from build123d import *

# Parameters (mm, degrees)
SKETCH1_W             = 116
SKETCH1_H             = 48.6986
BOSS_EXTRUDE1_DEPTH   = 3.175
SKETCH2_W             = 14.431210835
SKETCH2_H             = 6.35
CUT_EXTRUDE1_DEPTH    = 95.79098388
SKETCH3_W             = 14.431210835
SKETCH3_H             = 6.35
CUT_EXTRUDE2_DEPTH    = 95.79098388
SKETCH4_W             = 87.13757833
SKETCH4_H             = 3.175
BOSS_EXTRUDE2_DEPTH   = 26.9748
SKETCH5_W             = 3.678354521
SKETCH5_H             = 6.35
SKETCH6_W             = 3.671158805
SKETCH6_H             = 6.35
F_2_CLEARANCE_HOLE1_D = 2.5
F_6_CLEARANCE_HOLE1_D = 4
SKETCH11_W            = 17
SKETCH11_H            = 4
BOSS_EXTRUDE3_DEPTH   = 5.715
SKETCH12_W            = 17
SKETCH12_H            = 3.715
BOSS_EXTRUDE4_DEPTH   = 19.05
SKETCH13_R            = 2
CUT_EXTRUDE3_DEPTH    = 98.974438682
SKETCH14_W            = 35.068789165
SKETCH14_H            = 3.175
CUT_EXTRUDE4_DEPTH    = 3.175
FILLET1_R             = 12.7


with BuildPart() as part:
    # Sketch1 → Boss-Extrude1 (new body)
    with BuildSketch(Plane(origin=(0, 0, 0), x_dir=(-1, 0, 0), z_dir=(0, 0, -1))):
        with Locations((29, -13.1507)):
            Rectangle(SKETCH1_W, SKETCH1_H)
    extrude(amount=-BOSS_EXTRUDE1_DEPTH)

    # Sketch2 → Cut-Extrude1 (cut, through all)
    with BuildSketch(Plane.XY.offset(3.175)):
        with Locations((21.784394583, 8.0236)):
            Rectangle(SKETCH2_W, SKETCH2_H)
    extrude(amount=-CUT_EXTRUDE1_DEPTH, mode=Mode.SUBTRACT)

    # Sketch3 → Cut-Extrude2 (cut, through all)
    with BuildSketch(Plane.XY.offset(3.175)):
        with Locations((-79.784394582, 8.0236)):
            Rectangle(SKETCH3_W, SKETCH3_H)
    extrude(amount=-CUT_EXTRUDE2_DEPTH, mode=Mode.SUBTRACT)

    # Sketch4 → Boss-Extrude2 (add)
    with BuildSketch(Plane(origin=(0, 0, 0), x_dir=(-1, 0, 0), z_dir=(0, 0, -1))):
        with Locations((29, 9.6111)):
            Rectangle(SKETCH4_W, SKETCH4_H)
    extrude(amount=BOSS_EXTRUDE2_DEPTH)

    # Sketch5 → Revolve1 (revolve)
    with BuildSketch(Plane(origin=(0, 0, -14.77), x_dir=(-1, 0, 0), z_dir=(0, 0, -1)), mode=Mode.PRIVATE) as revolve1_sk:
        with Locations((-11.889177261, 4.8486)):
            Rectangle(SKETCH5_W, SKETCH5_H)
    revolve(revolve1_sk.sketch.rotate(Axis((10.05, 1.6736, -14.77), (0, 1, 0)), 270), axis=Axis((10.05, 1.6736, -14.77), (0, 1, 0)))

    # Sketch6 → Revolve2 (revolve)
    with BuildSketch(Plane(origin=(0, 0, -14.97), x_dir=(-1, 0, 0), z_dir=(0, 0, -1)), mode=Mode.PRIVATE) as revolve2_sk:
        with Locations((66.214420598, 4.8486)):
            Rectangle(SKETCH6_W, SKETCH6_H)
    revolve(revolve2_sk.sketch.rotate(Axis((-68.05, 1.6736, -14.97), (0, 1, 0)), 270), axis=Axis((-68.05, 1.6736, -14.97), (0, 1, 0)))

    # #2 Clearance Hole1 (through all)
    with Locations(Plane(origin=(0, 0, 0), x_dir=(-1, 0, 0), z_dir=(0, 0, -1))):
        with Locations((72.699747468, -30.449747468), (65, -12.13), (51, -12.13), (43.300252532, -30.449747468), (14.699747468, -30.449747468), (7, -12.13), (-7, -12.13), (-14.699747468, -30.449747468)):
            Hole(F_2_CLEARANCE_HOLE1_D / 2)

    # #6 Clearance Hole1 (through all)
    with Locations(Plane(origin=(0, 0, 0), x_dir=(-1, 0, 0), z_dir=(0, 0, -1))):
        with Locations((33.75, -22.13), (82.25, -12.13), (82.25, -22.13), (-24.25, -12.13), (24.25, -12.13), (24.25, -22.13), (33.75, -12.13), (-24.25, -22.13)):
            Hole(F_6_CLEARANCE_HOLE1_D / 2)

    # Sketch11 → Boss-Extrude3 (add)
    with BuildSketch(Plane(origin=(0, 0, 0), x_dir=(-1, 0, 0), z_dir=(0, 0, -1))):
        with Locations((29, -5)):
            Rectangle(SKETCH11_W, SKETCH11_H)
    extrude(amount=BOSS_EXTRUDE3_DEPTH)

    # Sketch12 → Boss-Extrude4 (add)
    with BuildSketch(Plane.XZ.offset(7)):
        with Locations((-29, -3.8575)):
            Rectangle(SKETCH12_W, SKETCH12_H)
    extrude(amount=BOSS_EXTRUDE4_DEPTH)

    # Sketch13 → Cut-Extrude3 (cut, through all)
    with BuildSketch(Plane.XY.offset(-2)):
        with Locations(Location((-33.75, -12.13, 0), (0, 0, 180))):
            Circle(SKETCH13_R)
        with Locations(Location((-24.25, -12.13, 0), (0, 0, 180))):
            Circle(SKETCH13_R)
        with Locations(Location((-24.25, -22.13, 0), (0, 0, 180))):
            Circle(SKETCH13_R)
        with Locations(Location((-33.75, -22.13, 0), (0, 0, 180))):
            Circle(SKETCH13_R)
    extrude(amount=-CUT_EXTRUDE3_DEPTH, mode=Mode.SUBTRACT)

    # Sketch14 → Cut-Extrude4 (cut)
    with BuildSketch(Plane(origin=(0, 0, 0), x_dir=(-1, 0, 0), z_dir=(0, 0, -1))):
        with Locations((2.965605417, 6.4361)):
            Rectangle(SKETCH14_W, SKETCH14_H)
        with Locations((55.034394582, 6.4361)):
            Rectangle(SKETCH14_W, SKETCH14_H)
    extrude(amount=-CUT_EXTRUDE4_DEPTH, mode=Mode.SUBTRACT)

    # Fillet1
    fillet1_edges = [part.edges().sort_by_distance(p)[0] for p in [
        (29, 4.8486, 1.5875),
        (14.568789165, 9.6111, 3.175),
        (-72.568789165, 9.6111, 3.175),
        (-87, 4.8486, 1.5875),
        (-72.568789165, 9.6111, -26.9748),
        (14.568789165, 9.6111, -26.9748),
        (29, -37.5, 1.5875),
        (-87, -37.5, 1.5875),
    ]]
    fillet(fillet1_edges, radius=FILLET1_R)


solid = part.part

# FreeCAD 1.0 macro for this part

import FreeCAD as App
import Part
import Sketcher

V = App.Vector
Q = App.Units.Quantity


def edges_at(feature, points):
    """Names of the edges that pass closest to the given points."""
    edges = feature.Shape.Edges
    near = lambda p: min(range(len(edges)), key=lambda i: edges[i].distToShape(Part.Vertex(*p))[0])
    return sorted({f"Edge{near(p) + 1}" for p in points})


def add_polygon(sketch, points):
    """Adds a closed chain of lines whose ends are joined by coincident constraints."""
    first, n = sketch.GeometryCount, len(points)
    for a, b in zip(points, points[1:] + points[:1]):
        sketch.addGeometry(Part.LineSegment(App.Vector(*a, 0), App.Vector(*b, 0)), False)
    for i in range(n):
        sketch.addConstraint(Sketcher.Constraint("Coincident", first + i, 2, first + (i + 1) % n, 1))

doc = App.newDocument("Part")
body = doc.addObject("PartDesign::Body", "Body")

sketch1 = doc.addObject("Sketcher::SketchObject", "Sketch")
body.addObject(sketch1)
sketch1.AttachmentSupport = (doc.XY_Plane, [""])
sketch1.MapMode = "FlatFace"
add_polygon(sketch1, [(29, 11), (29, -38), (-87, -38), (-87, 11)])
sketch1.addConstraint(Sketcher.Constraint("Vertical", 0))
sketch1.addConstraint(Sketcher.Constraint("Horizontal", 1))
sketch1.addConstraint(Sketcher.Constraint("Vertical", 2))
sketch1.addConstraint(Sketcher.Constraint("Horizontal", 3))
sketch1.addConstraint(Sketcher.Constraint("DistanceX", 1, 2, 1, 1, Q("116 mm")))
sketch1.addConstraint(Sketcher.Constraint("DistanceY", 0, 2, 0, 1, Q("48.6986 mm")))
sketch1.addConstraint(Sketcher.Constraint("DistanceX", -1, 1, 0, 2, Q("29 mm")))
sketch1.addConstraint(Sketcher.Constraint("DistanceY", 0, 2, -1, 1, Q("37.5 mm")))
pad1 = doc.addObject("PartDesign::Pad", "Pad")
body.addObject(pad1)
pad1.Profile = sketch1
pad1.Length = Q("0.125 in")

sketch2 = doc.addObject("Sketcher::SketchObject", "Sketch001")
body.addObject(sketch2)
sketch2.AttachmentSupport = (doc.XY_Plane, [""])
sketch2.MapMode = "FlatFace"
sketch2.AttachmentOffset = App.Placement(V(0, 0, 0.125 * 25.4), App.Rotation())
add_polygon(sketch2, [(15, 11), (15, 5), (29, 5), (29, 11)])
sketch2.addConstraint(Sketcher.Constraint("Vertical", 0))
sketch2.addConstraint(Sketcher.Constraint("Horizontal", 1))
sketch2.addConstraint(Sketcher.Constraint("Vertical", 2))
sketch2.addConstraint(Sketcher.Constraint("Horizontal", 3))
sketch2.addConstraint(Sketcher.Constraint("DistanceY", 0, 2, 0, 1, Q("0.25 in")))
sketch2.addConstraint(Sketcher.Constraint("DistanceX", 1, 1, 1, 2, Q("14.431211 mm")))
sketch2.addConstraint(Sketcher.Constraint("DistanceY", -1, 1, 0, 2, Q("4.8486 mm")))
sketch2.addConstraint(Sketcher.Constraint("DistanceX", -1, 1, 1, 2, Q("29 mm")))
pocket1 = doc.addObject("PartDesign::Pocket", "Pocket")
body.addObject(pocket1)
pocket1.Profile = sketch2
pocket1.Type = "ThroughAll"

sketch3 = doc.addObject("Sketcher::SketchObject", "Sketch002")
body.addObject(sketch3)
sketch3.AttachmentSupport = (doc.XY_Plane, [""])
sketch3.MapMode = "FlatFace"
sketch3.AttachmentOffset = App.Placement(V(0, 0, 0.125 * 25.4), App.Rotation())
add_polygon(sketch3, [(-87, 11), (-87, 5), (-73, 5), (-73, 11)])
sketch3.addConstraint(Sketcher.Constraint("Vertical", 0))
sketch3.addConstraint(Sketcher.Constraint("Horizontal", 1))
sketch3.addConstraint(Sketcher.Constraint("Vertical", 2))
sketch3.addConstraint(Sketcher.Constraint("Horizontal", 3))
sketch3.addConstraint(Sketcher.Constraint("DistanceY", 0, 2, 0, 1, Q("0.25 in")))
sketch3.addConstraint(Sketcher.Constraint("DistanceX", 1, 1, 1, 2, Q("14.431211 mm")))
sketch3.addConstraint(Sketcher.Constraint("DistanceX", 0, 2, -1, 1, Q("87 mm")))
sketch3.addConstraint(Sketcher.Constraint("DistanceY", -1, 1, 0, 2, Q("4.8486 mm")))
pocket2 = doc.addObject("PartDesign::Pocket", "Pocket001")
body.addObject(pocket2)
pocket2.Profile = sketch3
pocket2.Type = "ThroughAll"

sketch4 = doc.addObject("Sketcher::SketchObject", "Sketch003")
body.addObject(sketch4)
sketch4.AttachmentSupport = (doc.XY_Plane, [""])
sketch4.MapMode = "FlatFace"
add_polygon(sketch4, [(14.6, 11.2), (14.6, 8), (-72.6, 8), (-72.6, 11.2)])
sketch4.addConstraint(Sketcher.Constraint("Vertical", 0))
sketch4.addConstraint(Sketcher.Constraint("Horizontal", 1))
sketch4.addConstraint(Sketcher.Constraint("Vertical", 2))
sketch4.addConstraint(Sketcher.Constraint("Horizontal", 3))
sketch4.addConstraint(Sketcher.Constraint("DistanceY", 0, 2, 0, 1, Q("0.125 in")))
sketch4.addConstraint(Sketcher.Constraint("DistanceX", 1, 2, 1, 1, Q("87.137578 mm")))
sketch4.addConstraint(Sketcher.Constraint("DistanceY", -1, 1, 0, 2, Q("8.0236 mm")))
sketch4.addConstraint(Sketcher.Constraint("DistanceX", -1, 1, 0, 2, Q("14.568789 mm")))
pad2 = doc.addObject("PartDesign::Pad", "Pad001")
body.addObject(pad2)
pad2.Profile = sketch4
pad2.Length = Q("1.062 in")
pad2.Reversed = True

sketch5 = doc.addObject("Sketcher::SketchObject", "Sketch004")
body.addObject(sketch5)
sketch5.AttachmentSupport = (doc.XY_Plane, [""])
sketch5.MapMode = "FlatFace"
sketch5.AttachmentOffset = App.Placement(V(0, 0, -14.77), App.Rotation())
add_polygon(sketch5, [(13.7, 8), (13.7, 1.7), (10.1, 1.7), (10.1, 8)])
sketch5.addGeometry(Part.LineSegment(V(10.1, 1.7, 0), V(10.1, 8, 0)), True)
sketch5.addConstraint(Sketcher.Constraint("Vertical", 0))
sketch5.addConstraint(Sketcher.Constraint("Horizontal", 1))
sketch5.addConstraint(Sketcher.Constraint("Vertical", 2))
sketch5.addConstraint(Sketcher.Constraint("Horizontal", 3))
sketch5.addConstraint(Sketcher.Constraint("Vertical", 4))
sketch5.addConstraint(Sketcher.Constraint("Coincident", 4, 1, 1, 2))
sketch5.addConstraint(Sketcher.Constraint("Horizontal", 3, 2, 4, 2))
sketch5.addConstraint(Sketcher.Constraint("DistanceY", 0, 2, 0, 1, Q("0.25 in")))
sketch5.addConstraint(Sketcher.Constraint("DistanceY", -1, 1, 0, 2, Q("1.6736 mm")))
sketch5.addConstraint(Sketcher.Constraint("DistanceX", -1, 1, 1, 2, Q("10.05 mm")))
sketch5.addConstraint(Sketcher.Constraint("DistanceX", 1, 2, 1, 1, Q("3.678355 mm")))
revolution = doc.addObject("PartDesign::Revolution", "Revolution")
body.addObject(revolution)
revolution.Profile = sketch5
revolution.ReferenceAxis = (sketch5, ["Axis0"])
revolution.Angle = 360

sketch6 = doc.addObject("Sketcher::SketchObject", "Sketch005")
body.addObject(sketch6)
sketch6.AttachmentSupport = (doc.XY_Plane, [""])
sketch6.MapMode = "FlatFace"
sketch6.AttachmentOffset = App.Placement(V(0, 0, -14.97), App.Rotation())
add_polygon(sketch6, [(-64.4, 8), (-64.4, 1.7), (-68.1, 1.7), (-68.1, 8)])
sketch6.addGeometry(Part.LineSegment(V(-68, 1.7, 0), V(-68, 8, 0)), True)
sketch6.addConstraint(Sketcher.Constraint("Vertical", 0))
sketch6.addConstraint(Sketcher.Constraint("Horizontal", 1))
sketch6.addConstraint(Sketcher.Constraint("Vertical", 2))
sketch6.addConstraint(Sketcher.Constraint("Horizontal", 3))
sketch6.addConstraint(Sketcher.Constraint("Vertical", 4))
sketch6.addConstraint(Sketcher.Constraint("Coincident", 4, 1, 1, 2))
sketch6.addConstraint(Sketcher.Constraint("Horizontal", 3, 2, 4, 2))
sketch6.addConstraint(Sketcher.Constraint("DistanceY", 0, 2, 0, 1, Q("0.25 in")))
sketch6.addConstraint(Sketcher.Constraint("DistanceX", 0, 2, -1, 1, Q("2.5346 in")))
sketch6.addConstraint(Sketcher.Constraint("DistanceX", 1, 2, 1, 1, Q("3.671159 mm")))
sketch6.addConstraint(Sketcher.Constraint("DistanceY", -1, 1, 0, 2, Q("1.6736 mm")))
revolution2 = doc.addObject("PartDesign::Revolution", "Revolution001")
body.addObject(revolution2)
revolution2.Profile = sketch6
revolution2.ReferenceAxis = (sketch6, ["Axis0"])
revolution2.Angle = 360

sketch7 = doc.addObject("Sketcher::SketchObject", "Sketch006")
body.addObject(sketch7)
sketch7.AttachmentSupport = (doc.XY_Plane, [""])
sketch7.MapMode = "FlatFace"
sketch7.addGeometry(Part.Circle(V(-72.7, -30.4, 0), V(0, 0, 1), 1.2), False)
sketch7.addGeometry(Part.Circle(V(-65, -12.1, 0), V(0, 0, 1), 1.2), False)
sketch7.addGeometry(Part.Circle(V(-51, -12.1, 0), V(0, 0, 1), 1.2), False)
sketch7.addGeometry(Part.Circle(V(-43.3, -30.4, 0), V(0, 0, 1), 1.2), False)
sketch7.addGeometry(Part.Circle(V(-14.7, -30.4, 0), V(0, 0, 1), 1.2), False)
sketch7.addGeometry(Part.Circle(V(-7, -12.1, 0), V(0, 0, 1), 1.2), False)
sketch7.addGeometry(Part.Circle(V(7, -12.1, 0), V(0, 0, 1), 1.2), False)
sketch7.addGeometry(Part.Circle(V(14.7, -30.4, 0), V(0, 0, 1), 1.2), False)
sketch7.addConstraint(Sketcher.Constraint("Equal", 0, 1))
sketch7.addConstraint(Sketcher.Constraint("Equal", 1, 2))
sketch7.addConstraint(Sketcher.Constraint("Equal", 2, 3))
sketch7.addConstraint(Sketcher.Constraint("Equal", 3, 4))
sketch7.addConstraint(Sketcher.Constraint("Equal", 4, 5))
sketch7.addConstraint(Sketcher.Constraint("Equal", 5, 6))
sketch7.addConstraint(Sketcher.Constraint("Equal", 6, 7))
sketch7.addConstraint(Sketcher.Constraint("Symmetric", 5, 3, 6, 3, -2))
sketch7.addConstraint(Sketcher.Constraint("Symmetric", 4, 3, 7, 3, -2))
sketch7.addConstraint(Sketcher.Constraint("Horizontal", 1, 3, 2, 3))
sketch7.addConstraint(Sketcher.Constraint("Horizontal", 0, 3, 3, 3))
sketch7.addConstraint(Sketcher.Constraint("Horizontal", 3, 3, 4, 3))
sketch7.addConstraint(Sketcher.Constraint("Horizontal", 2, 3, 5, 3))
sketch7.addConstraint(Sketcher.Constraint("Diameter", 0, Q("2.5 mm")))
sketch7.addConstraint(Sketcher.Constraint("DistanceX", 1, 3, -1, 1, Q("65 mm")))
sketch7.addConstraint(Sketcher.Constraint("DistanceY", 1, 3, -1, 1, Q("12.13 mm")))
sketch7.addConstraint(Sketcher.Constraint("DistanceX", 2, 3, -1, 1, Q("51 mm")))
sketch7.addConstraint(Sketcher.Constraint("DistanceX", 5, 3, -1, 1, Q("7 mm")))
sketch7.addConstraint(Sketcher.Constraint("DistanceX", 0, 3, 4, 3, Q("58 mm")))
sketch7.addConstraint(Sketcher.Constraint("DistanceX", 3, 3, 7, 3, Q("58 mm")))
sketch7.addConstraint(Sketcher.Constraint("DistanceX", 0, 3, -1, 1, Q("72.699747 mm")))
sketch7.addConstraint(Sketcher.Constraint("DistanceY", 0, 3, -1, 1, Q("30.449747 mm")))
doc.recompute()
hole = doc.addObject("PartDesign::Hole", "Hole")
body.addObject(hole)
hole.Profile = sketch7
hole.ThreadType = "None"
hole.Diameter = 2.5
hole.DepthType = "ThroughAll"
hole.Reversed = True

sketch8 = doc.addObject("Sketcher::SketchObject", "Sketch007")
body.addObject(sketch8)
sketch8.AttachmentSupport = (doc.XY_Plane, [""])
sketch8.MapMode = "FlatFace"
sketch8.addGeometry(Part.Circle(V(-33.8, -22.1, 0), V(0, 0, 1), 2), False)
sketch8.addGeometry(Part.Circle(V(-82.2, -12.1, 0), V(0, 0, 1), 2), False)
sketch8.addGeometry(Part.Circle(V(-82.2, -22.1, 0), V(0, 0, 1), 2), False)
sketch8.addGeometry(Part.Circle(V(24.2, -12.1, 0), V(0, 0, 1), 2), False)
sketch8.addGeometry(Part.Circle(V(-24.2, -12.1, 0), V(0, 0, 1), 2), False)
sketch8.addGeometry(Part.Circle(V(-24.2, -22.1, 0), V(0, 0, 1), 2), False)
sketch8.addGeometry(Part.Circle(V(-33.8, -12.1, 0), V(0, 0, 1), 2), False)
sketch8.addGeometry(Part.Circle(V(24.2, -22.1, 0), V(0, 0, 1), 2), False)
sketch8.addConstraint(Sketcher.Constraint("Equal", 0, 1))
sketch8.addConstraint(Sketcher.Constraint("Equal", 1, 2))
sketch8.addConstraint(Sketcher.Constraint("Equal", 2, 3))
sketch8.addConstraint(Sketcher.Constraint("Equal", 3, 4))
sketch8.addConstraint(Sketcher.Constraint("Equal", 4, 5))
sketch8.addConstraint(Sketcher.Constraint("Equal", 5, 6))
sketch8.addConstraint(Sketcher.Constraint("Equal", 6, 7))
sketch8.addConstraint(Sketcher.Constraint("Symmetric", 3, 3, 4, 3, -2))
sketch8.addConstraint(Sketcher.Constraint("Symmetric", 5, 3, 7, 3, -2))
sketch8.addConstraint(Sketcher.Constraint("Horizontal", 0, 3, 2, 3))
sketch8.addConstraint(Sketcher.Constraint("Horizontal", 1, 3, 3, 3))
sketch8.addConstraint(Sketcher.Constraint("Horizontal", 2, 3, 5, 3))
sketch8.addConstraint(Sketcher.Constraint("Horizontal", 4, 3, 6, 3))
sketch8.addConstraint(Sketcher.Constraint("Vertical", 1, 3, 2, 3))
sketch8.addConstraint(Sketcher.Constraint("Vertical", 4, 3, 5, 3))
sketch8.addConstraint(Sketcher.Constraint("Vertical", 0, 3, 6, 3))
sketch8.addConstraint(Sketcher.Constraint("Diameter", 0, Q("4 mm")))
sketch8.addConstraint(Sketcher.Constraint("DistanceX", 0, 3, -1, 1, Q("33.75 mm")))
sketch8.addConstraint(Sketcher.Constraint("DistanceY", 0, 3, -1, 1, Q("22.13 mm")))
sketch8.addConstraint(Sketcher.Constraint("DistanceX", 1, 3, -1, 1, Q("82.25 mm")))
sketch8.addConstraint(Sketcher.Constraint("DistanceY", 1, 3, -1, 1, Q("12.13 mm")))
sketch8.addConstraint(Sketcher.Constraint("DistanceX", -1, 1, 3, 3, Q("24.25 mm")))
doc.recompute()
hole2 = doc.addObject("PartDesign::Hole", "Hole001")
body.addObject(hole2)
hole2.Profile = sketch8
hole2.ThreadType = "None"
hole2.Diameter = 4
hole2.DepthType = "ThroughAll"
hole2.Reversed = True

sketch9 = doc.addObject("Sketcher::SketchObject", "Sketch008")
body.addObject(sketch9)
sketch9.AttachmentSupport = (doc.XY_Plane, [""])
sketch9.MapMode = "FlatFace"
add_polygon(sketch9, [(-20.5, -3), (-20.5, -7), (-37.5, -7), (-37.5, -3)])
sketch9.addConstraint(Sketcher.Constraint("Vertical", 0))
sketch9.addConstraint(Sketcher.Constraint("Horizontal", 1))
sketch9.addConstraint(Sketcher.Constraint("Vertical", 2))
sketch9.addConstraint(Sketcher.Constraint("Horizontal", 3))
sketch9.addConstraint(Sketcher.Constraint("DistanceX", 1, 2, 1, 1, Q("17 mm")))
sketch9.addConstraint(Sketcher.Constraint("DistanceY", 0, 2, 0, 1, Q("4 mm")))
sketch9.addConstraint(Sketcher.Constraint("DistanceX", 0, 2, -1, 1, Q("20.5 mm")))
sketch9.addConstraint(Sketcher.Constraint("DistanceY", 0, 2, -1, 1, Q("7 mm")))
pad3 = doc.addObject("PartDesign::Pad", "Pad002")
body.addObject(pad3)
pad3.Profile = sketch9
pad3.Length = Q("0.225 in")
pad3.Reversed = True

sketch10 = doc.addObject("Sketcher::SketchObject", "Sketch009")
body.addObject(sketch10)
sketch10.AttachmentSupport = (doc.XZ_Plane, [""])
sketch10.MapMode = "FlatFace"
sketch10.AttachmentOffset = App.Placement(V(0, 0, 7), App.Rotation())
add_polygon(sketch10, [(-37.5, -2), (-37.5, -5.7), (-20.5, -5.7), (-20.5, -2)])
sketch10.addConstraint(Sketcher.Constraint("Vertical", 0))
sketch10.addConstraint(Sketcher.Constraint("Horizontal", 1))
sketch10.addConstraint(Sketcher.Constraint("Vertical", 2))
sketch10.addConstraint(Sketcher.Constraint("Horizontal", 3))
sketch10.addConstraint(Sketcher.Constraint("DistanceY", 0, 2, -1, 1, Q("0.225 in")))
sketch10.addConstraint(Sketcher.Constraint("DistanceX", 1, 1, 1, 2, Q("17 mm")))
sketch10.addConstraint(Sketcher.Constraint("DistanceY", 0, 2, 0, 1, Q("3.715 mm")))
sketch10.addConstraint(Sketcher.Constraint("DistanceX", 0, 2, -1, 1, Q("37.5 mm")))
pad4 = doc.addObject("PartDesign::Pad", "Pad003")
body.addObject(pad4)
pad4.Profile = sketch10
pad4.Length = Q("0.75 in")

sketch11 = doc.addObject("Sketcher::SketchObject", "Sketch010")
body.addObject(sketch11)
sketch11.AttachmentSupport = (doc.XY_Plane, [""])
sketch11.MapMode = "FlatFace"
sketch11.AttachmentOffset = App.Placement(V(0, 0, -2), App.Rotation())
sketch11.addGeometry(Part.Circle(V(-33.8, -12.1, 0), V(0, 0, 1), 2), False)
sketch11.addGeometry(Part.Circle(V(-24.2, -12.1, 0), V(0, 0, 1), 2), False)
sketch11.addGeometry(Part.Circle(V(-24.2, -22.1, 0), V(0, 0, 1), 2), False)
sketch11.addGeometry(Part.Circle(V(-33.8, -22.1, 0), V(0, 0, 1), 2), False)
sketch11.addConstraint(Sketcher.Constraint("Equal", 0, 1))
sketch11.addConstraint(Sketcher.Constraint("Equal", 1, 2))
sketch11.addConstraint(Sketcher.Constraint("Equal", 2, 3))
sketch11.addConstraint(Sketcher.Constraint("Horizontal", 0, 3, 1, 3))
sketch11.addConstraint(Sketcher.Constraint("Horizontal", 2, 3, 3, 3))
sketch11.addConstraint(Sketcher.Constraint("Vertical", 1, 3, 2, 3))
sketch11.addConstraint(Sketcher.Constraint("Vertical", 0, 3, 3, 3))
sketch11.addConstraint(Sketcher.Constraint("Diameter", 0, Q("4 mm")))
sketch11.addConstraint(Sketcher.Constraint("DistanceX", 0, 3, -1, 1, Q("33.75 mm")))
sketch11.addConstraint(Sketcher.Constraint("DistanceY", 0, 3, -1, 1, Q("12.13 mm")))
sketch11.addConstraint(Sketcher.Constraint("DistanceX", 1, 3, -1, 1, Q("24.25 mm")))
sketch11.addConstraint(Sketcher.Constraint("DistanceY", 2, 3, -1, 1, Q("22.13 mm")))
pocket3 = doc.addObject("PartDesign::Pocket", "Pocket002")
body.addObject(pocket3)
pocket3.Profile = sketch11
pocket3.Type = "ThroughAll"

sketch12 = doc.addObject("Sketcher::SketchObject", "Sketch011")
body.addObject(sketch12)
sketch12.AttachmentSupport = (doc.XY_Plane, [""])
sketch12.MapMode = "FlatFace"
add_polygon(sketch12, [(14.6, 8), (14.6, 4.8), (-20.5, 4.8), (-20.5, 8)])
add_polygon(sketch12, [(-37.5, 8), (-37.5, 4.8), (-72.6, 4.8), (-72.6, 8)])
sketch12.addConstraint(Sketcher.Constraint("Vertical", 0))
sketch12.addConstraint(Sketcher.Constraint("Horizontal", 1))
sketch12.addConstraint(Sketcher.Constraint("Vertical", 2))
sketch12.addConstraint(Sketcher.Constraint("Horizontal", 3))
sketch12.addConstraint(Sketcher.Constraint("Vertical", 4))
sketch12.addConstraint(Sketcher.Constraint("Horizontal", 5))
sketch12.addConstraint(Sketcher.Constraint("Vertical", 6))
sketch12.addConstraint(Sketcher.Constraint("Horizontal", 7))
sketch12.addConstraint(Sketcher.Constraint("Horizontal", 1, 2, 4, 2))
sketch12.addConstraint(Sketcher.Constraint("Horizontal", 3, 2, 6, 2))
sketch12.addConstraint(Sketcher.Constraint("Equal", 3, 5))
sketch12.addConstraint(Sketcher.Constraint("DistanceY", 0, 2, 0, 1, Q("0.125 in")))
sketch12.addConstraint(Sketcher.Constraint("DistanceX", 1, 2, 1, 1, Q("35.068789 mm")))
sketch12.addConstraint(Sketcher.Constraint("DistanceY", -1, 1, 0, 2, Q("4.8486 mm")))
sketch12.addConstraint(Sketcher.Constraint("DistanceX", 1, 2, -1, 1, Q("20.5 mm")))
sketch12.addConstraint(Sketcher.Constraint("DistanceX", 4, 2, -1, 1, Q("37.5 mm")))
pocket4 = doc.addObject("PartDesign::Pocket", "Pocket003")
body.addObject(pocket4)
pocket4.Profile = sketch12
pocket4.Length = Q("0.125 in")
pocket4.Reversed = True
doc.recompute()

fillet = doc.addObject("PartDesign::Fillet", "Fillet")
body.addObject(fillet)
fillet.Base = (pocket4, edges_at(pocket4, [
    (29, 4.849, 1.587),
    (14.569, 9.611, 3.175),
    (-72.569, 9.611, 3.175),
    (-87, 4.849, 1.587),
    (-72.569, 9.611, -26.975),
    (14.569, 9.611, -26.975),
    (29, -37.5, 1.587),
    (-87, -37.5, 1.587),
]))
fillet.Radius = Q("0.5 in")

doc.recompute()
